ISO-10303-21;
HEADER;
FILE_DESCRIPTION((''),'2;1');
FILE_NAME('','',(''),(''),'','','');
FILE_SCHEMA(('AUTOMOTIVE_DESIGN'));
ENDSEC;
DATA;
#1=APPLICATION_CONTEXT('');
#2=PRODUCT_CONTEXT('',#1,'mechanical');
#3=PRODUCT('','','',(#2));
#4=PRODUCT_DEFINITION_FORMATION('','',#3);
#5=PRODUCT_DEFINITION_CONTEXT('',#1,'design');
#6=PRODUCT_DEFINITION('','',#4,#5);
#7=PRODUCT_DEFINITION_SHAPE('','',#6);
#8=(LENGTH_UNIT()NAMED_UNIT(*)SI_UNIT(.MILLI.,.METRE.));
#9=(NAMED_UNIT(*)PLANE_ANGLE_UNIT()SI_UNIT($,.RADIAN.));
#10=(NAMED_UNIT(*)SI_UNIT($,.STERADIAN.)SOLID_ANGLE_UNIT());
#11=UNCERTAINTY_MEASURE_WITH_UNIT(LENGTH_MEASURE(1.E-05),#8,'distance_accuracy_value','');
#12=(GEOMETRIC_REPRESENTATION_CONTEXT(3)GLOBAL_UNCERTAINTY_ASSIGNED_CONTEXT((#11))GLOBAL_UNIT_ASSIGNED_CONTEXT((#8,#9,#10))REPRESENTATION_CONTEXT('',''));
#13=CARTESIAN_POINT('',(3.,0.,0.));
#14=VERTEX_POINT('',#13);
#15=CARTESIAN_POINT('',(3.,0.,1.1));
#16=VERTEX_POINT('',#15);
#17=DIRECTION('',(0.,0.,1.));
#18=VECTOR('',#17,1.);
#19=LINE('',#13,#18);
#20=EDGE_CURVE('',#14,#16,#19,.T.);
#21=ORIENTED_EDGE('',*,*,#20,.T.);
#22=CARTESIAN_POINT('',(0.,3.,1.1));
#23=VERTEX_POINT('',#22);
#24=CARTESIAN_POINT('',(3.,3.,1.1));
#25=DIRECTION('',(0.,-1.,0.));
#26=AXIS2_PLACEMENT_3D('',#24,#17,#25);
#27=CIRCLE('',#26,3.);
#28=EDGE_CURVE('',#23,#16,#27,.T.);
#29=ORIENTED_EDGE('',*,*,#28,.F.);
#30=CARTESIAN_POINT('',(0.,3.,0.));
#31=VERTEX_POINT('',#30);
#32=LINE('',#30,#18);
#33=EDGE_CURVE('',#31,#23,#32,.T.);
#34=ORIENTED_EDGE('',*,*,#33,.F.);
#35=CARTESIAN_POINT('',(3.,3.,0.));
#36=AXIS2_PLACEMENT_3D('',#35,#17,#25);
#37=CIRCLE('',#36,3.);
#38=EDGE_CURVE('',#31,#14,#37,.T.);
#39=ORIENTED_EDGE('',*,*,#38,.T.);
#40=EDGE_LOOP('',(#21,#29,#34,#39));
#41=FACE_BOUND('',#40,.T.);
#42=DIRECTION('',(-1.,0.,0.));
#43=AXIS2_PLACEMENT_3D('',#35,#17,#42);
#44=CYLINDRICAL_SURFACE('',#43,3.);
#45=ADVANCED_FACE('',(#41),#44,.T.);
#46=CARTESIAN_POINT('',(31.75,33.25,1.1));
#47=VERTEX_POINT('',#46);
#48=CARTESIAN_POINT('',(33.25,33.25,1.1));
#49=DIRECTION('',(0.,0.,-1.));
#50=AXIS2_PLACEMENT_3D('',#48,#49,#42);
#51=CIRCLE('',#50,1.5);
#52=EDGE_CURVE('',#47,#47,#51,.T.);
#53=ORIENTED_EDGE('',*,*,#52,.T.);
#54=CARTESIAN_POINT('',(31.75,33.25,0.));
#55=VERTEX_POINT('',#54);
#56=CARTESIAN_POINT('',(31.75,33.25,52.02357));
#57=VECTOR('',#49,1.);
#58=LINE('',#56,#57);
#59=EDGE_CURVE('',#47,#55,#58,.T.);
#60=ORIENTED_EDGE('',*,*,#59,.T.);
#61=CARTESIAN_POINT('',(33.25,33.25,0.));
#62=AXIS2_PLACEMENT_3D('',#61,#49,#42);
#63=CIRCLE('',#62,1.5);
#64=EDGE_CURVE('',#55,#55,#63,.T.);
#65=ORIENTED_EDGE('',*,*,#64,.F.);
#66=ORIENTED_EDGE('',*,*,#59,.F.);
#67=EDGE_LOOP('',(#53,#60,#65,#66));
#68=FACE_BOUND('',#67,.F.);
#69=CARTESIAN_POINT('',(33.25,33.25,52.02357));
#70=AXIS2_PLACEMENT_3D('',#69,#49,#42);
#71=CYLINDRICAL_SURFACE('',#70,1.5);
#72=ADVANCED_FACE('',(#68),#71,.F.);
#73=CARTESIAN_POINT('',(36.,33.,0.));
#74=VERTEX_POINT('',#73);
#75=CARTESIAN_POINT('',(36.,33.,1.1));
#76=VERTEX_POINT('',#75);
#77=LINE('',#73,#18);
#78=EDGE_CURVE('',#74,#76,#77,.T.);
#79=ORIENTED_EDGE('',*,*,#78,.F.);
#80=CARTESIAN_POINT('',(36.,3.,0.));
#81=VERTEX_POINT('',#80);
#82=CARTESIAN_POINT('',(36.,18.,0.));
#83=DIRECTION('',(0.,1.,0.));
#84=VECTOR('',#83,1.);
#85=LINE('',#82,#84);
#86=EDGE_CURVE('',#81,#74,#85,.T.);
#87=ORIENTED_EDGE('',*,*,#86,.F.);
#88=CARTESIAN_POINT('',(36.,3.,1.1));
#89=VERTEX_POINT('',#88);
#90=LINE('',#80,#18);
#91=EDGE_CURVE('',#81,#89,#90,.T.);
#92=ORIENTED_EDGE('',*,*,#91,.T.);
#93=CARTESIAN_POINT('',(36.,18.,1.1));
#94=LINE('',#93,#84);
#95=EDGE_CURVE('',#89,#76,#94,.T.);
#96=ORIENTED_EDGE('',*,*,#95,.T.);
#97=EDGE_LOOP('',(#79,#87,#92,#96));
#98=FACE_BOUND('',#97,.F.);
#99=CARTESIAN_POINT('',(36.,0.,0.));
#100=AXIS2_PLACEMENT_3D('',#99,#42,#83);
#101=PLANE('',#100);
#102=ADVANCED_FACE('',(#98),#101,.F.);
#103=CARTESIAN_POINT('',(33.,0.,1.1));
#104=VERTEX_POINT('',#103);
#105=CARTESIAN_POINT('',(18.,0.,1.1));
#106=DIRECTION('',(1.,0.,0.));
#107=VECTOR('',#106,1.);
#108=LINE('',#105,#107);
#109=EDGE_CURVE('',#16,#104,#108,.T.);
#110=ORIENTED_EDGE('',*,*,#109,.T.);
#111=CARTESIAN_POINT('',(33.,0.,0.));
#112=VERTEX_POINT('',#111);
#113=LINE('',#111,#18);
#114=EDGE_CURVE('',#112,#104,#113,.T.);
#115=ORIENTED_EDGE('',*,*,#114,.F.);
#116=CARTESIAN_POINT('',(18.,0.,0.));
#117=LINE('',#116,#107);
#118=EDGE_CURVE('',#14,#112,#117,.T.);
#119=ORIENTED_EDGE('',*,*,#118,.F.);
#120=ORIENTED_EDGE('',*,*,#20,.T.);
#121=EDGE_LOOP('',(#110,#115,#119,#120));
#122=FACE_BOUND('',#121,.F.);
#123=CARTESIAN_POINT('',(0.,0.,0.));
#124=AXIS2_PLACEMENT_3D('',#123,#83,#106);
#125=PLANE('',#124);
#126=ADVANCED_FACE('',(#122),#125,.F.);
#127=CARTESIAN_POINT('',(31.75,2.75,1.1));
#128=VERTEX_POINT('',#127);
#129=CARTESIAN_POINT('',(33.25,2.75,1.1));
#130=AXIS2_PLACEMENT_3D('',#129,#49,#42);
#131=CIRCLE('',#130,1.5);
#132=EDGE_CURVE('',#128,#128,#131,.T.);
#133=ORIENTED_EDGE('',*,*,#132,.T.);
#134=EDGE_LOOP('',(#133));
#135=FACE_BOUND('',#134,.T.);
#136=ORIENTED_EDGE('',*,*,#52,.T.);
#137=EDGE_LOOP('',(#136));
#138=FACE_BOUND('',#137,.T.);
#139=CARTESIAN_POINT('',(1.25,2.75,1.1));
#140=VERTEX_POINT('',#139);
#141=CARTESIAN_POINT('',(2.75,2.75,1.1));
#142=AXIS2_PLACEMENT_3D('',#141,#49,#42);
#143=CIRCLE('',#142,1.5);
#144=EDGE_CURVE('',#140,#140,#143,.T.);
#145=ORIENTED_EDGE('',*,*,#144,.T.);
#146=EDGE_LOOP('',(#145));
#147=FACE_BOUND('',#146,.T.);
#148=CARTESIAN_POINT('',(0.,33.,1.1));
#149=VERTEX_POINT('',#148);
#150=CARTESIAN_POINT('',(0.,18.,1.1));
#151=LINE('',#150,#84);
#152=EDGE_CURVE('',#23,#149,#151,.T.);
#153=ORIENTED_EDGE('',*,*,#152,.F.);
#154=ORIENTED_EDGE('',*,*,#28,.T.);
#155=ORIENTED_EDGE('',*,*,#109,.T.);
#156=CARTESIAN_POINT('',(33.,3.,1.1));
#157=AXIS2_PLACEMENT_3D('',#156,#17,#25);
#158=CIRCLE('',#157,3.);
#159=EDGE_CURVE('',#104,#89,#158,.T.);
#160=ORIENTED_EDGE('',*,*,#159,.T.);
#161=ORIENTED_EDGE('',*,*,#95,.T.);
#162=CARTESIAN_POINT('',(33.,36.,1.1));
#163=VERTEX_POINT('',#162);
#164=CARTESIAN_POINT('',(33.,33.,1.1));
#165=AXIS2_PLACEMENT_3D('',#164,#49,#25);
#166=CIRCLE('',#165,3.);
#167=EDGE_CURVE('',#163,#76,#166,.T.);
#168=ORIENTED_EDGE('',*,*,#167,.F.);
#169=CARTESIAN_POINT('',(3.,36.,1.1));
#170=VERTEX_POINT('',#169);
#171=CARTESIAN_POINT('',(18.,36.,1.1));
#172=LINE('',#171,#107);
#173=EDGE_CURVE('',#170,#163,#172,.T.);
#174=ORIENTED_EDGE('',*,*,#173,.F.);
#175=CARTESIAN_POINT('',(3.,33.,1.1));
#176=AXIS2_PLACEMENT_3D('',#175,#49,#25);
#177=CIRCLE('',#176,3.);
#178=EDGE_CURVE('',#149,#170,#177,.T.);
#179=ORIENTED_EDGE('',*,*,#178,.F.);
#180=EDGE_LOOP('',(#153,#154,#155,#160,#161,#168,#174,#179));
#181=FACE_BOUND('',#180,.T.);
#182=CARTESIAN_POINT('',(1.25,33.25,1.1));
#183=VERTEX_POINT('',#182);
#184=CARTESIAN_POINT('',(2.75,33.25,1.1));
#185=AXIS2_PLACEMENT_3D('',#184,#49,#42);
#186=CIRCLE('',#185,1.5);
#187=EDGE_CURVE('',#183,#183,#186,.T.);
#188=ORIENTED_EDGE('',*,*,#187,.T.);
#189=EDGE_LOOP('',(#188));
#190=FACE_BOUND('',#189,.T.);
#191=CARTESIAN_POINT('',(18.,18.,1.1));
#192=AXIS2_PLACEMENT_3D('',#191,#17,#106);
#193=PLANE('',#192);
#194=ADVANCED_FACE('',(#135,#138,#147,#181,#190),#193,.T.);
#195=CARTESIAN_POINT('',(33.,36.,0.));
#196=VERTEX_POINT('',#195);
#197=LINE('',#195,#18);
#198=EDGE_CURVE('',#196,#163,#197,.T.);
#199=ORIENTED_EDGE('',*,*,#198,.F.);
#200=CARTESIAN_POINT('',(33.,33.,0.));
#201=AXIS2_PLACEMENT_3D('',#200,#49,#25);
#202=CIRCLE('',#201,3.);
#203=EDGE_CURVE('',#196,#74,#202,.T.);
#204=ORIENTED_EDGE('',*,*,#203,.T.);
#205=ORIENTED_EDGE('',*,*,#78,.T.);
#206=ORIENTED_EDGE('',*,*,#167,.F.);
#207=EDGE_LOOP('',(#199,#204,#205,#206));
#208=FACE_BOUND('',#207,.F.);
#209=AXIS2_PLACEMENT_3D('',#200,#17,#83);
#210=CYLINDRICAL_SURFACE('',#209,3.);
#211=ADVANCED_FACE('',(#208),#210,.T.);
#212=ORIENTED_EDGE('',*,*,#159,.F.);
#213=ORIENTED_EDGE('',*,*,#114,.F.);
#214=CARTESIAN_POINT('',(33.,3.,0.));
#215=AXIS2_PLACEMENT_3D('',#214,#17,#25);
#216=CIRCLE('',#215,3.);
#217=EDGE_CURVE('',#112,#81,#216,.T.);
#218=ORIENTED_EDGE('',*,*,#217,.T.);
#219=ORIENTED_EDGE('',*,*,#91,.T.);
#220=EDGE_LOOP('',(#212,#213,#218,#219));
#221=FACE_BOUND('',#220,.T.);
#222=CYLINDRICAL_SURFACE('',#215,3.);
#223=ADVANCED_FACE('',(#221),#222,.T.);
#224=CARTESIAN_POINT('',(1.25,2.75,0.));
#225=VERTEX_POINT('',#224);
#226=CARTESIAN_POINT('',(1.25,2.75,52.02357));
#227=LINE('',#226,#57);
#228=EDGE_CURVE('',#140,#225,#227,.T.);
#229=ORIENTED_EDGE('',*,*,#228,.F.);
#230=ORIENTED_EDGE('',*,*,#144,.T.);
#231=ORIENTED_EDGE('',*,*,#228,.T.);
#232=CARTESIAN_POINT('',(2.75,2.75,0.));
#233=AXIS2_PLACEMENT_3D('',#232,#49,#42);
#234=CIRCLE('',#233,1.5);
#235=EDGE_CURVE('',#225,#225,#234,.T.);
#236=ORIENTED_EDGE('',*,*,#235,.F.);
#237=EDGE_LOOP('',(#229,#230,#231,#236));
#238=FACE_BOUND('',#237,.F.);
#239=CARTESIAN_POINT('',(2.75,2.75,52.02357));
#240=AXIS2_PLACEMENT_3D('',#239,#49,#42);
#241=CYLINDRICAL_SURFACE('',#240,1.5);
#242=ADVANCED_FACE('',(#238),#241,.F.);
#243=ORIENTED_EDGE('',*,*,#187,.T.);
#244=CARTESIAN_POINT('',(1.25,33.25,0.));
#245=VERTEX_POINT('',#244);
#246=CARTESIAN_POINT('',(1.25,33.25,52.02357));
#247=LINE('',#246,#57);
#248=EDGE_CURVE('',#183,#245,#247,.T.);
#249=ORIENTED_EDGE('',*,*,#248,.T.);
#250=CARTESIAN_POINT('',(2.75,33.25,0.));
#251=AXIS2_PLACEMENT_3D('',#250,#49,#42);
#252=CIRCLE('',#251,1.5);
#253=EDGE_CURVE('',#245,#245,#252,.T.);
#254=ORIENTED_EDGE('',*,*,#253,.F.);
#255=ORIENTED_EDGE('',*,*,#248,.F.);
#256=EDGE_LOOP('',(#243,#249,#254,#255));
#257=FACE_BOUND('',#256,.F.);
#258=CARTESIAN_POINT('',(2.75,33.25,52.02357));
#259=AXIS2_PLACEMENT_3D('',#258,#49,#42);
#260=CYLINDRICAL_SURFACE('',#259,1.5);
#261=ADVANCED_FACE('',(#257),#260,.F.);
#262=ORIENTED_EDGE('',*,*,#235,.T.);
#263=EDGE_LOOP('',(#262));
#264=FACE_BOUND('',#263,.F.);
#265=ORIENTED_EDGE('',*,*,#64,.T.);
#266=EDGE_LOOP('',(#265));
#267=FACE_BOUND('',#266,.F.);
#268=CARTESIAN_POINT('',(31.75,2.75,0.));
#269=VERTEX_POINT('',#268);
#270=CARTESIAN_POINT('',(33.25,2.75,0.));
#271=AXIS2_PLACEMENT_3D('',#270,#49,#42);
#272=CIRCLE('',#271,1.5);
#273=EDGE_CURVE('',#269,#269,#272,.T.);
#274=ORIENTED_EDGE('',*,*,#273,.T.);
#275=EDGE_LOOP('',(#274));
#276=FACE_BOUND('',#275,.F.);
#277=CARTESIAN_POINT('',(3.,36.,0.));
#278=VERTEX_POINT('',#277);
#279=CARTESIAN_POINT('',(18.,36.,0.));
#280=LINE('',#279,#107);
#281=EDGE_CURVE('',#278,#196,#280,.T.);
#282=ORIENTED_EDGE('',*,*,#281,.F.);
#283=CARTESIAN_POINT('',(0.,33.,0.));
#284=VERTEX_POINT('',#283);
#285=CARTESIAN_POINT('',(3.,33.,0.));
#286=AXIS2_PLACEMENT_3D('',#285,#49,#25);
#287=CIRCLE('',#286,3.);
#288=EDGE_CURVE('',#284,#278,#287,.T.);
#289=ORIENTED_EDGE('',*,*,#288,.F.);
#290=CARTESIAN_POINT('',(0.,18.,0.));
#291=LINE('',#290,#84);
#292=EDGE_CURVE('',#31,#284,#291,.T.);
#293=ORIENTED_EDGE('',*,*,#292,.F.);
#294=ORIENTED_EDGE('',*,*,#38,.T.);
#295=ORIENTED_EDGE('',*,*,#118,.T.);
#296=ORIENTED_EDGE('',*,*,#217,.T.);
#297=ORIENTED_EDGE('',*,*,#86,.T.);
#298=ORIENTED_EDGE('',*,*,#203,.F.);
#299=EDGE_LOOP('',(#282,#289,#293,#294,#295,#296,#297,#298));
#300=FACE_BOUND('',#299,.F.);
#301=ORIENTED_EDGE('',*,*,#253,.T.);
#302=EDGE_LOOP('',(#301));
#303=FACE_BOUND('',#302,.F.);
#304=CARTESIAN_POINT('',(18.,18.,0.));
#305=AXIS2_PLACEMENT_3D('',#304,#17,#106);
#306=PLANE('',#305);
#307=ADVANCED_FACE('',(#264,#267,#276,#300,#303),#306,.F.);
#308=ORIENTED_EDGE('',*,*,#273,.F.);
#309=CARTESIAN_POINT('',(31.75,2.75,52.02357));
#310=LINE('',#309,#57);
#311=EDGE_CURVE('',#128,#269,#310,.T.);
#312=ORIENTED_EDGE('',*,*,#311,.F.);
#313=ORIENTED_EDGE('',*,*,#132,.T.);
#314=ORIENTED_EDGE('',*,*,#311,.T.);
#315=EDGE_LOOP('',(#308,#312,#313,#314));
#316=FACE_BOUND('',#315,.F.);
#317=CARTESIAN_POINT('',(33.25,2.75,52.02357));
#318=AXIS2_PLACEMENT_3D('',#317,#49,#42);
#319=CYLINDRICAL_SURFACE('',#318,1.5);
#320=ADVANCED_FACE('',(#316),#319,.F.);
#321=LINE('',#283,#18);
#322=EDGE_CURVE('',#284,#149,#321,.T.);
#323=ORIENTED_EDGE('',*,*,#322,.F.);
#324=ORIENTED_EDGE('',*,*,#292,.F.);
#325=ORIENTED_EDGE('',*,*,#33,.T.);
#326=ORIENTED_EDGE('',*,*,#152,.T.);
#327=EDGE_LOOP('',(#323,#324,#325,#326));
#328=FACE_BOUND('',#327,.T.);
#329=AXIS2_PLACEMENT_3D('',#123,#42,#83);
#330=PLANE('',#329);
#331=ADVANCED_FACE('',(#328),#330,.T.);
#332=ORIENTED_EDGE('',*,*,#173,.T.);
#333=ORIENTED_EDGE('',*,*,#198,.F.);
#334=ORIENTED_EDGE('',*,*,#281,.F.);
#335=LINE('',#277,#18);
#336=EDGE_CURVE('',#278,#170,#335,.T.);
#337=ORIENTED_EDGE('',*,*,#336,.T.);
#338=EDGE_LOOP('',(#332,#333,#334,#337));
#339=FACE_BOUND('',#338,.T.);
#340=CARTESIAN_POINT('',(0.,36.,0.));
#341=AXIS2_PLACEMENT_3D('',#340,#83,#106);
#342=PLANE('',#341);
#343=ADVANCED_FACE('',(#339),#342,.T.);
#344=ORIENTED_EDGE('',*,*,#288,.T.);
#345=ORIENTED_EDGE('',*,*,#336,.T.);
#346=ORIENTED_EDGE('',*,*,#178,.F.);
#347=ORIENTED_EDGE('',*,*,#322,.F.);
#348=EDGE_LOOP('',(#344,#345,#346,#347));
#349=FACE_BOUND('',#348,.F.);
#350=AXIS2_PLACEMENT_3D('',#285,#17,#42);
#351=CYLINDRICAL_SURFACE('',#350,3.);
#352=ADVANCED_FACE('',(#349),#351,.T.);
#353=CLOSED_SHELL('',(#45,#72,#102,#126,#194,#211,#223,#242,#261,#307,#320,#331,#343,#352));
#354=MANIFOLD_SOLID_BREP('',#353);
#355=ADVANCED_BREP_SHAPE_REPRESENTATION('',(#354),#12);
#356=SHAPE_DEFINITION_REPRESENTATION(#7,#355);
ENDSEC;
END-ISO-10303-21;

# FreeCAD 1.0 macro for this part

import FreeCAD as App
import Part
import Sketcher
Q = App.Units.Quantity


def edges_at(feature, points):
    """Names of the edges that pass closest to the given points."""
    edges = feature.Shape.Edges
    near = lambda p: min(range(len(edges)), key=lambda i: edges[i].distToShape(Part.Vertex(*p))[0])
    return sorted({f"Edge{near(p) + 1}" for p in points})


def add_polygon(sketch, points):
    """Adds a closed chain of lines whose ends are joined by coincident constraints."""
    first, n = sketch.GeometryCount, len(points)
    for a, b in zip(points, points[1:] + points[:1]):
        sketch.addGeometry(Part.LineSegment(App.Vector(*a, 0), App.Vector(*b, 0)), False)
    for i in range(n):
        sketch.addConstraint(Sketcher.Constraint("Coincident", first + i, 2, first + (i + 1) % n, 1))

doc = App.newDocument("Part")
body = doc.addObject("PartDesign::Body", "Body")

sketch1 = body.newObject("Sketcher::SketchObject", "Sketch")
sketch1.AttachmentSupport = (doc.getObject("XY_Plane"), [""])
sketch1.MapMode = "FlatFace"
add_polygon(sketch1, [(0, 36), (0, 0), (36, 0), (36, 36)])
sketch1.addConstraint([
    Sketcher.Constraint("Vertical", 0),
    Sketcher.Constraint("Horizontal", 1),
    Sketcher.Constraint("Vertical", 2),
    Sketcher.Constraint("Horizontal", 3),
    Sketcher.Constraint("Coincident", 0, 2, -1, 1),
    Sketcher.Constraint("Equal", 3, 0),
    Sketcher.Constraint("DistanceX", 1, 1, 1, 2, Q("36 mm")),
])
pad1 = body.newObject("PartDesign::Pad", "Pad")
pad1.Profile = sketch1
pad1.Length = 1.1

sketch2 = body.newObject("Sketcher::SketchObject", "Sketch001")
sketch2.AttachmentSupport = (doc.getObject("XY_Plane"), [""])
sketch2.MapMode = "FlatFace"
sketch2.AttachmentOffset = App.Placement(App.Vector(0, 0, 1.1), App.Rotation())
sketch2.addGeometry([
    Part.Circle(App.Vector(2.8, 33.2, 0), App.Vector(0, 0, 1), 1.5),
    Part.Circle(App.Vector(33.2, 33.2, 0), App.Vector(0, 0, 1), 1.5),
    Part.Circle(App.Vector(2.8, 2.8, 0), App.Vector(0, 0, 1), 1.5),
    Part.Circle(App.Vector(33.2, 2.8, 0), App.Vector(0, 0, 1), 1.5),
], False)
sketch2.addConstraint([
    Sketcher.Constraint("Equal", 0, 1),
    Sketcher.Constraint("Equal", 1, 2),
    Sketcher.Constraint("Equal", 2, 3),
    Sketcher.Constraint("Horizontal", 0, 3, 1, 3),
    Sketcher.Constraint("Horizontal", 2, 3, 3, 3),
    Sketcher.Constraint("Vertical", 0, 3, 2, 3),
    Sketcher.Constraint("Vertical", 1, 3, 3, 3),
    Sketcher.Constraint("Diameter", 0, Q("3 mm")),
    Sketcher.Constraint("DistanceX", 0, 3, 1, 3, Q("30.5 mm")),
    Sketcher.Constraint("DistanceY", 2, 3, 0, 3, Q("30.5 mm")),
    Sketcher.Constraint("DistanceX", -1, 1, 0, 3, Q("2.75 mm")),
    Sketcher.Constraint("DistanceY", -1, 1, 0, 3, Q("33.25 mm")),
])
doc.recompute()
hole = body.newObject("PartDesign::Hole", "Hole")
hole.Profile = sketch2
hole.ThreadType = "None"
hole.Diameter = 3
hole.DepthType = "ThroughAll"
doc.recompute()

fillet = body.newObject("PartDesign::Fillet", "Fillet")
fillet.Base = (hole, edges_at(hole, [
    (36, 0, 0.55),
    (0, 0, 0.55),
    (0, 36, 0.55),
    (36, 36, 0.55),
]))
fillet.Radius = 3

doc.recompute()
